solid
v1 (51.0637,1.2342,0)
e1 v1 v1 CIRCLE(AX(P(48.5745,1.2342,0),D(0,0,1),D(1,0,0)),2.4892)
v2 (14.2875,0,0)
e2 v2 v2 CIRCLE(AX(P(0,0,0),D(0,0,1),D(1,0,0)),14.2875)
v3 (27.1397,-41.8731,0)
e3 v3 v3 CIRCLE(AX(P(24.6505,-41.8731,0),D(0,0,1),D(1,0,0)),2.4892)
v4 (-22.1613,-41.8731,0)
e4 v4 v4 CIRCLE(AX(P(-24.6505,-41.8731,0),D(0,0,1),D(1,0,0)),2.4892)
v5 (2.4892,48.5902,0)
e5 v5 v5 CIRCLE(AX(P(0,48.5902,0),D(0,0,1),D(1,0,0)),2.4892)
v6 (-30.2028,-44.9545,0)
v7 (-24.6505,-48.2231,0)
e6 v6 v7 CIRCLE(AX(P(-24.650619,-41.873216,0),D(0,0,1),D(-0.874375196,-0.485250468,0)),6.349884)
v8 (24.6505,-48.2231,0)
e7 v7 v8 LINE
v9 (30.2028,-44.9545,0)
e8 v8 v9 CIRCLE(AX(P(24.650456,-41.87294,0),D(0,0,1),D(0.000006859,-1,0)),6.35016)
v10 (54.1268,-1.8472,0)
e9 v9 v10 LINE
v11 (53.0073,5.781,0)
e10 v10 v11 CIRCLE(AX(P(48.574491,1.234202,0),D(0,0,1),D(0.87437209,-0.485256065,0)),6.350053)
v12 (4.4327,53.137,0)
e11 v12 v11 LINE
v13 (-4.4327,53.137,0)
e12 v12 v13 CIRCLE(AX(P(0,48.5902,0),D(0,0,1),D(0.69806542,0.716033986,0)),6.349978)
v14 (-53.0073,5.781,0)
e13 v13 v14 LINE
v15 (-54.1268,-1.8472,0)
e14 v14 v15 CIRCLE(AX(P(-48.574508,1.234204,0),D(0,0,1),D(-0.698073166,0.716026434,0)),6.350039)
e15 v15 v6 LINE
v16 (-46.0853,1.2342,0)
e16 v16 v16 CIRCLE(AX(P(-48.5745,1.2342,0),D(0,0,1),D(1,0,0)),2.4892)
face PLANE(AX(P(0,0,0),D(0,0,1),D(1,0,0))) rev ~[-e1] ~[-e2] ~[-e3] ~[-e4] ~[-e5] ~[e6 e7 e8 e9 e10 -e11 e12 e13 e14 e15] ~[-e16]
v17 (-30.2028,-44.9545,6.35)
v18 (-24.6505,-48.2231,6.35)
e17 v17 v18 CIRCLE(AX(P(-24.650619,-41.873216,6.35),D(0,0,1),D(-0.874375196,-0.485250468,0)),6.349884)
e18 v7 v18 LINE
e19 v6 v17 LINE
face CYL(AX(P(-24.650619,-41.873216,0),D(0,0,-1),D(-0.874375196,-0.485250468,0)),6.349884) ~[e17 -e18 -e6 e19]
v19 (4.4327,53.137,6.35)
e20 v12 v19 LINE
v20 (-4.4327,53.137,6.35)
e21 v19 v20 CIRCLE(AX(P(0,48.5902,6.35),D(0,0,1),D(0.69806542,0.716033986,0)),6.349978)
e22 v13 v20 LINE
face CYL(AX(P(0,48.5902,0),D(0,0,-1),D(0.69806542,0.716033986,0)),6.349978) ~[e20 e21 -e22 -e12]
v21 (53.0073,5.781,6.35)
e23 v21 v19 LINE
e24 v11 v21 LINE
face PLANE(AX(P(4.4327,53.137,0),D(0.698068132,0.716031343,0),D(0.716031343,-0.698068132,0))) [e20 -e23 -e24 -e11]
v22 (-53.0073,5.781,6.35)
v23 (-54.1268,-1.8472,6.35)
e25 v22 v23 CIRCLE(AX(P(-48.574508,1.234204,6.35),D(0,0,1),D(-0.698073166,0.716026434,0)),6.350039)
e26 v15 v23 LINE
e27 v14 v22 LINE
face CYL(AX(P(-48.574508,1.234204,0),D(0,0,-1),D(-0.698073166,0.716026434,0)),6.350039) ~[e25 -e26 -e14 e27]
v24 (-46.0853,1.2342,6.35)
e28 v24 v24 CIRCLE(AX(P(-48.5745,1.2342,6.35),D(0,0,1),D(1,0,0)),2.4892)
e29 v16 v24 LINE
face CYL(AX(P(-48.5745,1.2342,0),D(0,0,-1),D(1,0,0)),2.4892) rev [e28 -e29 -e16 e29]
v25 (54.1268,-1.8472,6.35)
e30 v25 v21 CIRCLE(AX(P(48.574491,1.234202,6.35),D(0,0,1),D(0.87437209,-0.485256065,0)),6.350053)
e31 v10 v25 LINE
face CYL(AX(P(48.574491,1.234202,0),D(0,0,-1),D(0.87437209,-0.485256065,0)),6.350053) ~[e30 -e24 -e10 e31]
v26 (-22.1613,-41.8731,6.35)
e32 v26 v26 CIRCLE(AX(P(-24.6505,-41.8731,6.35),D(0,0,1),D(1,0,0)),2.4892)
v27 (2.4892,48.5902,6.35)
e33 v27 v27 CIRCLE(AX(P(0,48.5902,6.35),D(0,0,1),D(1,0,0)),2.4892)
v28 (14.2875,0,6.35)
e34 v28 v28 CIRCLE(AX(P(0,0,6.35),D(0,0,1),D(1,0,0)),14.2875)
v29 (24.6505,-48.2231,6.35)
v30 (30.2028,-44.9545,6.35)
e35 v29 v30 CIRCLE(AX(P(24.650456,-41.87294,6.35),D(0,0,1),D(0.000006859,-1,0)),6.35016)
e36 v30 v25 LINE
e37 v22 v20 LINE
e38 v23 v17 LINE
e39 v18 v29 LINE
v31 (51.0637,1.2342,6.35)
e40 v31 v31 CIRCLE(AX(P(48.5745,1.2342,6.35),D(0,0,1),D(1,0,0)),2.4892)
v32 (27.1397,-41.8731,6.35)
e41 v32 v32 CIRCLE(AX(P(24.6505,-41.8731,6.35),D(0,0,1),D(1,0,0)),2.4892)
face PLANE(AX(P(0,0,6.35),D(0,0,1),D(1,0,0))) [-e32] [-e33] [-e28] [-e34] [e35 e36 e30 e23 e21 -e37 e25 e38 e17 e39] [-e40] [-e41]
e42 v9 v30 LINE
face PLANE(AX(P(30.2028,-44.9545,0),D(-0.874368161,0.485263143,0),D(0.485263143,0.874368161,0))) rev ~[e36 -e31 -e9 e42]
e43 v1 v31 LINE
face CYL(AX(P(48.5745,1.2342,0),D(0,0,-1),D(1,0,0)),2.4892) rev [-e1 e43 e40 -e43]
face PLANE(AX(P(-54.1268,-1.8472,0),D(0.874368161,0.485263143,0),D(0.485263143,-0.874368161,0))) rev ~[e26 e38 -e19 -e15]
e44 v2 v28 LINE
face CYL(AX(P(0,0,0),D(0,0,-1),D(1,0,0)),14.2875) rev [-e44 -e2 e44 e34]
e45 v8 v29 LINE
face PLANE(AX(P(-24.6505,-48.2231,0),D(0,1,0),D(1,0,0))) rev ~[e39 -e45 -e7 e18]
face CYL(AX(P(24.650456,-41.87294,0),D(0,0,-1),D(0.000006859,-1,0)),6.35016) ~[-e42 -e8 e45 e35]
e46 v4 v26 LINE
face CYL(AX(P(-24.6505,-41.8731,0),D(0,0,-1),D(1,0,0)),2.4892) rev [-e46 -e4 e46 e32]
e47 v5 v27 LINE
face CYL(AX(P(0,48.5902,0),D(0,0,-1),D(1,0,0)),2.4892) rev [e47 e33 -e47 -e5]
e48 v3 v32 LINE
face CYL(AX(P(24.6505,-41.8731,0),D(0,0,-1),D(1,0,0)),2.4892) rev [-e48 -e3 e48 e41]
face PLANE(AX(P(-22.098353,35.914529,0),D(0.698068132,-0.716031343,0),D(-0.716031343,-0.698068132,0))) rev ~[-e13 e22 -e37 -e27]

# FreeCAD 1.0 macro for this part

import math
import FreeCAD as App
import Part
import Sketcher
from FreeCAD import Vector
Q = App.Units.Quantity

doc = App.newDocument("Part")
body = doc.addObject("PartDesign::Body", "Body")

# Sketch on XY plane
sketch1 = body.newObject("Sketcher::SketchObject", "Sketch")
sketch1.AttachmentSupport = (doc.getObject("XY_Plane"), [""])
sketch1.MapMode = "FlatFace"
sketch1.addGeometry(Part.ArcOfCircle(Part.Circle(Vector(-48.5745, 1.2342, 0), Vector(0, 0, 1), 6.350048), math.radians(134.272644), math.radians(209.029277)), False)
sketch1.addGeometry(Part.LineSegment(Vector(-54.1268, -1.8472, 0), Vector(-30.2028, -44.9545, 0)), False)
sketch1.addGeometry(Part.ArcOfCircle(Part.Circle(Vector(-24.6505, -41.8731, 0), Vector(0, 0, 1), 6.35), math.radians(-150.970723), math.radians(-90)), False)
sketch1.addGeometry(Part.LineSegment(Vector(-24.6505, -48.2231, 0), Vector(24.6505, -48.2231, 0)), False)
sketch1.addGeometry(Part.ArcOfCircle(Part.Circle(Vector(24.6505, -41.8731, 0), Vector(0, 0, 1), 6.35), math.radians(-90), math.radians(-29.029277)), False)
sketch1.addGeometry(Part.LineSegment(Vector(30.2028, -44.9545, 0), Vector(54.1268, -1.8472, 0)), False)
sketch1.addGeometry(Part.ArcOfCircle(Part.Circle(Vector(48.5745, 1.2342, 0), Vector(0, 0, 1), 6.350044), math.radians(-29.029277), math.radians(45.727356)), False)
sketch1.addGeometry(Part.LineSegment(Vector(53.0073, 5.781, 0), Vector(4.4327, 53.137, 0)), False)
sketch1.addGeometry(Part.ArcOfCircle(Part.Circle(Vector(0, 48.5902, 0), Vector(0, 0, 1), 6.349978), math.radians(45.728002), math.radians(134.271998)), False)
sketch1.addGeometry(Part.LineSegment(Vector(-4.4327, 53.137, 0), Vector(-53.0073, 5.781, 0)), False)
sketch1.addGeometry(Part.Circle(Vector(48.5745, 1.2342, 0), Vector(0, 0, 1), 2.4892), False)
sketch1.addGeometry(Part.Circle(Vector(0, 48.5902, 0), Vector(0, 0, 1), 2.4892), False)
sketch1.addGeometry(Part.Circle(Vector(-24.6505, -41.8731, 0), Vector(0, 0, 1), 2.4892), False)
sketch1.addGeometry(Part.Circle(Vector(-48.5745, 1.2342, 0), Vector(0, 0, 1), 2.4892), False)
sketch1.addGeometry(Part.Circle(Vector(24.6505, -41.8731, 0), Vector(0, 0, 1), 2.4892), False)
sketch1.addGeometry(Part.Circle(Vector(0, 0, 0), Vector(0, 0, 1), 14.2875), False)
sketch1.addConstraint(Sketcher.Constraint("Coincident", 0, 2, 1, 1))
sketch1.addConstraint(Sketcher.Constraint("Coincident", 1, 2, 2, 1))
sketch1.addConstraint(Sketcher.Constraint("Coincident", 2, 2, 3, 1))
sketch1.addConstraint(Sketcher.Constraint("Coincident", 3, 2, 4, 1))
sketch1.addConstraint(Sketcher.Constraint("Coincident", 4, 2, 5, 1))
sketch1.addConstraint(Sketcher.Constraint("Coincident", 5, 2, 6, 1))
sketch1.addConstraint(Sketcher.Constraint("Coincident", 6, 2, 7, 1))
sketch1.addConstraint(Sketcher.Constraint("Coincident", 7, 2, 8, 1))
sketch1.addConstraint(Sketcher.Constraint("Coincident", 8, 2, 9, 1))
sketch1.addConstraint(Sketcher.Constraint("Coincident", 9, 2, 0, 1))
sketch1.addConstraint(Sketcher.Constraint("Horizontal", 3))
sketch1.addConstraint(Sketcher.Constraint("Coincident", 15, 3, -1, 1))
sketch1.addConstraint(Sketcher.Constraint("Coincident", 10, 3, 6, 3))
sketch1.addConstraint(Sketcher.Constraint("Coincident", 11, 3, 8, 3))
sketch1.addConstraint(Sketcher.Constraint("Coincident", 12, 3, 2, 3))
sketch1.addConstraint(Sketcher.Constraint("Coincident", 13, 3, 0, 3))
sketch1.addConstraint(Sketcher.Constraint("Coincident", 14, 3, 4, 3))
sketch1.addConstraint(Sketcher.Constraint("PointOnObject", 8, 3, -2))
sketch1.addConstraint(Sketcher.Constraint("Radius", 0, Q("0.25 in")))
sketch1.addConstraint(Sketcher.Constraint("Radius", 2, Q("0.25 in")))
sketch1.addConstraint(Sketcher.Constraint("Radius", 4, Q("0.25 in")))
sketch1.addConstraint(Sketcher.Constraint("Radius", 6, Q("0.25 in")))
sketch1.addConstraint(Sketcher.Constraint("Radius", 8, Q("0.25 in")))
sketch1.addConstraint(Sketcher.Constraint("Diameter", 10, Q("0.196 in")))
sketch1.addConstraint(Sketcher.Constraint("Diameter", 11, Q("0.196 in")))
sketch1.addConstraint(Sketcher.Constraint("Diameter", 12, Q("0.196 in")))
sketch1.addConstraint(Sketcher.Constraint("Diameter", 13, Q("0.196 in")))
sketch1.addConstraint(Sketcher.Constraint("Diameter", 14, Q("0.196 in")))
sketch1.addConstraint(Sketcher.Constraint("Diameter", 15, Q("1.125 in")))
sketch1.addConstraint(Sketcher.Constraint("DistanceY", -1, 1, 8, 3, Q("1.913 in")))
sketch1.addConstraint(Sketcher.Constraint("DistanceY", -1, 1, 7, 2, Q("2.092 in")))
sketch1.addConstraint(Sketcher.Constraint("DistanceY", -1, 1, 8, 2, Q("2.092 in")))
sketch1.addConstraint(Sketcher.Constraint("DistanceY", 6, 3, 6, 2, Q("0.179 in")))
sketch1.addConstraint(Sketcher.Constraint("DistanceY", 0, 3, 9, 2, Q("0.179 in")))
sketch1.addConstraint(Sketcher.Constraint("DistanceX", 3, 1, 3, 2, 49.301))
sketch1.addConstraint(Sketcher.Constraint("DistanceY", -1, 1, 0, 3, Q("0.0486 in")))
sketch1.addConstraint(Sketcher.Constraint("DistanceX", 2, 3, -1, 1, Q("0.9705 in")))
sketch1.addConstraint(Sketcher.Constraint("DistanceX", -1, 1, 4, 3, Q("0.9705 in")))
sketch1.addConstraint(Sketcher.Constraint("DistanceY", -1, 1, 6, 3, Q("0.0486 in")))
sketch1.addConstraint(Sketcher.Constraint("DistanceX", 2, 2, -1, 1, Q("0.9705 in")))
sketch1.addConstraint(Sketcher.Constraint("DistanceX", -1, 1, 6, 2, Q("2.0869 in")))
sketch1.addConstraint(Sketcher.Constraint("DistanceX", 9, 2, -1, 1, Q("2.0869 in")))
sketch1.addConstraint(Sketcher.Constraint("DistanceX", 0, 2, 0, 3, Q("0.2186 in")))
sketch1.addConstraint(Sketcher.Constraint("DistanceX", 1, 2, 2, 3, Q("0.2186 in")))
sketch1.addConstraint(Sketcher.Constraint("DistanceX", 4, 3, 4, 2, Q("0.2186 in")))
sketch1.addConstraint(Sketcher.Constraint("DistanceX", 6, 3, 5, 2, Q("0.2186 in")))
sketch1.addConstraint(Sketcher.Constraint("Distance", 1, 49.301))
pad1 = body.newObject("PartDesign::Pad", "Pad")
pad1.Profile = sketch1
pad1.Length = Q("0.25 in")

doc.recompute()
